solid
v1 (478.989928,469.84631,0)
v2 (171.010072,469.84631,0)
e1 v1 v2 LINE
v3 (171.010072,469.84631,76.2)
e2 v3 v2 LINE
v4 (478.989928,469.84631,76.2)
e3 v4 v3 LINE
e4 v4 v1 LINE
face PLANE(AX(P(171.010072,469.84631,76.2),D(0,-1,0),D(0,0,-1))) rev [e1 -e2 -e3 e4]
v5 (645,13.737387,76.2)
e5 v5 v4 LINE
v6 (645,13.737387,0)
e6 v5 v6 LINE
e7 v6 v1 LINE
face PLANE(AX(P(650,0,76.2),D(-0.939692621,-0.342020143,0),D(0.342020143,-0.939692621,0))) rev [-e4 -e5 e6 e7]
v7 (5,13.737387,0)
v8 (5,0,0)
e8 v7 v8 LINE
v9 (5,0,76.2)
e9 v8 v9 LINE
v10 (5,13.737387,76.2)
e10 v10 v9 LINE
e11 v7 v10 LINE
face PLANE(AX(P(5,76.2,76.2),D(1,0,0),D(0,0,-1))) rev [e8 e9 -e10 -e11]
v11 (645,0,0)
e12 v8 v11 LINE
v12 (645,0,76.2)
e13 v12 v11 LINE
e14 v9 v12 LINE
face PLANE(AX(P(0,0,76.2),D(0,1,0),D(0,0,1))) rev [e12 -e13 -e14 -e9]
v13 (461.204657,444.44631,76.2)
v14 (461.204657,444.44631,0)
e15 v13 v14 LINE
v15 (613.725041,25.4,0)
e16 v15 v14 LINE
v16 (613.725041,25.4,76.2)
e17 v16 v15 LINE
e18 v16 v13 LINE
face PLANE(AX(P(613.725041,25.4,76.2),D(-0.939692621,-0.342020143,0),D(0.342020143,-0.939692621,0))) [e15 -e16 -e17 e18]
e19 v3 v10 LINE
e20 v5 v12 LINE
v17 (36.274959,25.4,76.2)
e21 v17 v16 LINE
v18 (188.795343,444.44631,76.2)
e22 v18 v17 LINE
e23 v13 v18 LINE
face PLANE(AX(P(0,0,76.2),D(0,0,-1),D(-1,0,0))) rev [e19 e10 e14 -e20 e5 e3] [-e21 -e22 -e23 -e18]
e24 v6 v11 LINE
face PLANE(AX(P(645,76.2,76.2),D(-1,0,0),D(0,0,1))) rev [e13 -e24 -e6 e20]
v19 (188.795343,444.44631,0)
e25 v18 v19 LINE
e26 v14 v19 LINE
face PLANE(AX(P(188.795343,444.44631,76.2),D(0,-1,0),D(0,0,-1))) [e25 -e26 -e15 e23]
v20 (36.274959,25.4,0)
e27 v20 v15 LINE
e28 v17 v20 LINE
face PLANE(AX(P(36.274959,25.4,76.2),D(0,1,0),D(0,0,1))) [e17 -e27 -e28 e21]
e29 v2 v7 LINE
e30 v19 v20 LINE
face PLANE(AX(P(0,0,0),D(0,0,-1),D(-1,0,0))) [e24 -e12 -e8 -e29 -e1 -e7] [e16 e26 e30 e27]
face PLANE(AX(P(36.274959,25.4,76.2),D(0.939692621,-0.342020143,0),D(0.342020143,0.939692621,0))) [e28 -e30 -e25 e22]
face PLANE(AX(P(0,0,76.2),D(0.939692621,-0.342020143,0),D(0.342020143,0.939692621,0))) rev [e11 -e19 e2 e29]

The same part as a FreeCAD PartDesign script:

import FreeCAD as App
import Part
import Sketcher

V = App.Vector
Q = App.Units.Quantity


def add_polygon(sketch, points):
    """Adds a closed chain of lines whose ends are joined by coincident constraints."""
    first, n = sketch.GeometryCount, len(points)
    for a, b in zip(points, points[1:] + points[:1]):
        sketch.addGeometry(Part.LineSegment(App.Vector(*a, 0), App.Vector(*b, 0)), False)
    for i in range(n):
        sketch.addConstraint(Sketcher.Constraint("Coincident", first + i, 2, first + (i + 1) % n, 1))

doc = App.newDocument("Part")
body = doc.addObject("PartDesign::Body", "Body")

# Sketch on XY plane
sketch1 = body.newObject("Sketcher::SketchObject", "Sketch")
sketch1.AttachmentSupport = (doc.getObject("XY_Plane"), [""])
sketch1.MapMode = "FlatFace"
add_polygon(sketch1, [(0, 0), (650, 0), (478.989928, 469.84631), (171.010072, 469.84631)])  # lines 0-3
add_polygon(sketch1, [(36.274959, 25.4), (188.795343, 444.44631), (461.204657, 444.44631), (613.725041, 25.4)])  # lines 4-7
sketch1.addConstraint(Sketcher.Constraint("Horizontal", 0))
sketch1.addConstraint(Sketcher.Constraint("Horizontal", 2))
sketch1.addConstraint(Sketcher.Constraint("Horizontal", 5))
sketch1.addConstraint(Sketcher.Constraint("Horizontal", 7))
sketch1.addConstraint(Sketcher.Constraint("Coincident", 3, 2, -1, 1))
sketch1.addConstraint(Sketcher.Constraint("Parallel", 3, 4))
sketch1.addConstraint(Sketcher.Constraint("Parallel", 1, 6))
sketch1.addConstraint(Sketcher.Constraint("Equal", 1, 3))
sketch1.addConstraint(Sketcher.Constraint("DistanceX", 0, 1, 0, 2, Q("650 mm")))
sketch1.addConstraint(Sketcher.Constraint("Angle", 1, Q("110 deg")))
sketch1.addConstraint(Sketcher.Constraint("Distance", 1, Q("500 mm")))
sketch1.addConstraint(Sketcher.Constraint("DistanceY", -1, 1, 6, 2, Q("25.4 mm")))
sketch1.addConstraint(Sketcher.Constraint("DistanceY", 4, 2, 2, 2, Q("25.4 mm")))
sketch1.addConstraint(Sketcher.Constraint("DistanceX", 7, 2, 7, 1, Q("577.450081 mm")))
sketch1.addConstraint(Sketcher.Constraint("DistanceX", -1, 1, 6, 2, Q("613.725041 mm")))
pad1 = body.newObject("PartDesign::Pad", "Pad")
pad1.Profile = sketch1
pad1.Length = 76.2

# Sketch on XZ plane
sketch2 = body.newObject("Sketcher::SketchObject", "Sketch001")
sketch2.AttachmentSupport = (doc.getObject("XZ_Plane"), [""])
sketch2.MapMode = "FlatFace"
add_polygon(sketch2, [(0, 76.2), (0, 0), (5, 0), (5, 76.2)])  # lines 0-3
add_polygon(sketch2, [(645, 76.2), (645, 0), (650, 0), (650, 76.2)])  # lines 4-7
sketch2.addConstraint(Sketcher.Constraint("Vertical", 0))
sketch2.addConstraint(Sketcher.Constraint("Horizontal", 1))
sketch2.addConstraint(Sketcher.Constraint("Vertical", 2))
sketch2.addConstraint(Sketcher.Constraint("Horizontal", 3))
sketch2.addConstraint(Sketcher.Constraint("Vertical", 4))
sketch2.addConstraint(Sketcher.Constraint("Horizontal", 5))
sketch2.addConstraint(Sketcher.Constraint("Vertical", 6))
sketch2.addConstraint(Sketcher.Constraint("Horizontal", 7))
sketch2.addConstraint(Sketcher.Constraint("Coincident", 0, 2, -1, 1))
sketch2.addConstraint(Sketcher.Constraint("PointOnObject", 4, 2, -1))
sketch2.addConstraint(Sketcher.Constraint("Horizontal", 3, 2, 6, 2))
sketch2.addConstraint(Sketcher.Constraint("Equal", 3, 5))
sketch2.addConstraint(Sketcher.Constraint("DistanceX", 1, 1, 1, 2, Q("5 mm")))
sketch2.addConstraint(Sketcher.Constraint("DistanceY", 0, 2, 0, 1, Q("76.2 mm")))
sketch2.addConstraint(Sketcher.Constraint("DistanceX", -1, 1, 4, 2, Q("645 mm")))
pocket1 = body.newObject("PartDesign::Pocket", "Pocket")
pocket1.Profile = sketch2
pocket1.Length = 76.2

doc.recompute()
